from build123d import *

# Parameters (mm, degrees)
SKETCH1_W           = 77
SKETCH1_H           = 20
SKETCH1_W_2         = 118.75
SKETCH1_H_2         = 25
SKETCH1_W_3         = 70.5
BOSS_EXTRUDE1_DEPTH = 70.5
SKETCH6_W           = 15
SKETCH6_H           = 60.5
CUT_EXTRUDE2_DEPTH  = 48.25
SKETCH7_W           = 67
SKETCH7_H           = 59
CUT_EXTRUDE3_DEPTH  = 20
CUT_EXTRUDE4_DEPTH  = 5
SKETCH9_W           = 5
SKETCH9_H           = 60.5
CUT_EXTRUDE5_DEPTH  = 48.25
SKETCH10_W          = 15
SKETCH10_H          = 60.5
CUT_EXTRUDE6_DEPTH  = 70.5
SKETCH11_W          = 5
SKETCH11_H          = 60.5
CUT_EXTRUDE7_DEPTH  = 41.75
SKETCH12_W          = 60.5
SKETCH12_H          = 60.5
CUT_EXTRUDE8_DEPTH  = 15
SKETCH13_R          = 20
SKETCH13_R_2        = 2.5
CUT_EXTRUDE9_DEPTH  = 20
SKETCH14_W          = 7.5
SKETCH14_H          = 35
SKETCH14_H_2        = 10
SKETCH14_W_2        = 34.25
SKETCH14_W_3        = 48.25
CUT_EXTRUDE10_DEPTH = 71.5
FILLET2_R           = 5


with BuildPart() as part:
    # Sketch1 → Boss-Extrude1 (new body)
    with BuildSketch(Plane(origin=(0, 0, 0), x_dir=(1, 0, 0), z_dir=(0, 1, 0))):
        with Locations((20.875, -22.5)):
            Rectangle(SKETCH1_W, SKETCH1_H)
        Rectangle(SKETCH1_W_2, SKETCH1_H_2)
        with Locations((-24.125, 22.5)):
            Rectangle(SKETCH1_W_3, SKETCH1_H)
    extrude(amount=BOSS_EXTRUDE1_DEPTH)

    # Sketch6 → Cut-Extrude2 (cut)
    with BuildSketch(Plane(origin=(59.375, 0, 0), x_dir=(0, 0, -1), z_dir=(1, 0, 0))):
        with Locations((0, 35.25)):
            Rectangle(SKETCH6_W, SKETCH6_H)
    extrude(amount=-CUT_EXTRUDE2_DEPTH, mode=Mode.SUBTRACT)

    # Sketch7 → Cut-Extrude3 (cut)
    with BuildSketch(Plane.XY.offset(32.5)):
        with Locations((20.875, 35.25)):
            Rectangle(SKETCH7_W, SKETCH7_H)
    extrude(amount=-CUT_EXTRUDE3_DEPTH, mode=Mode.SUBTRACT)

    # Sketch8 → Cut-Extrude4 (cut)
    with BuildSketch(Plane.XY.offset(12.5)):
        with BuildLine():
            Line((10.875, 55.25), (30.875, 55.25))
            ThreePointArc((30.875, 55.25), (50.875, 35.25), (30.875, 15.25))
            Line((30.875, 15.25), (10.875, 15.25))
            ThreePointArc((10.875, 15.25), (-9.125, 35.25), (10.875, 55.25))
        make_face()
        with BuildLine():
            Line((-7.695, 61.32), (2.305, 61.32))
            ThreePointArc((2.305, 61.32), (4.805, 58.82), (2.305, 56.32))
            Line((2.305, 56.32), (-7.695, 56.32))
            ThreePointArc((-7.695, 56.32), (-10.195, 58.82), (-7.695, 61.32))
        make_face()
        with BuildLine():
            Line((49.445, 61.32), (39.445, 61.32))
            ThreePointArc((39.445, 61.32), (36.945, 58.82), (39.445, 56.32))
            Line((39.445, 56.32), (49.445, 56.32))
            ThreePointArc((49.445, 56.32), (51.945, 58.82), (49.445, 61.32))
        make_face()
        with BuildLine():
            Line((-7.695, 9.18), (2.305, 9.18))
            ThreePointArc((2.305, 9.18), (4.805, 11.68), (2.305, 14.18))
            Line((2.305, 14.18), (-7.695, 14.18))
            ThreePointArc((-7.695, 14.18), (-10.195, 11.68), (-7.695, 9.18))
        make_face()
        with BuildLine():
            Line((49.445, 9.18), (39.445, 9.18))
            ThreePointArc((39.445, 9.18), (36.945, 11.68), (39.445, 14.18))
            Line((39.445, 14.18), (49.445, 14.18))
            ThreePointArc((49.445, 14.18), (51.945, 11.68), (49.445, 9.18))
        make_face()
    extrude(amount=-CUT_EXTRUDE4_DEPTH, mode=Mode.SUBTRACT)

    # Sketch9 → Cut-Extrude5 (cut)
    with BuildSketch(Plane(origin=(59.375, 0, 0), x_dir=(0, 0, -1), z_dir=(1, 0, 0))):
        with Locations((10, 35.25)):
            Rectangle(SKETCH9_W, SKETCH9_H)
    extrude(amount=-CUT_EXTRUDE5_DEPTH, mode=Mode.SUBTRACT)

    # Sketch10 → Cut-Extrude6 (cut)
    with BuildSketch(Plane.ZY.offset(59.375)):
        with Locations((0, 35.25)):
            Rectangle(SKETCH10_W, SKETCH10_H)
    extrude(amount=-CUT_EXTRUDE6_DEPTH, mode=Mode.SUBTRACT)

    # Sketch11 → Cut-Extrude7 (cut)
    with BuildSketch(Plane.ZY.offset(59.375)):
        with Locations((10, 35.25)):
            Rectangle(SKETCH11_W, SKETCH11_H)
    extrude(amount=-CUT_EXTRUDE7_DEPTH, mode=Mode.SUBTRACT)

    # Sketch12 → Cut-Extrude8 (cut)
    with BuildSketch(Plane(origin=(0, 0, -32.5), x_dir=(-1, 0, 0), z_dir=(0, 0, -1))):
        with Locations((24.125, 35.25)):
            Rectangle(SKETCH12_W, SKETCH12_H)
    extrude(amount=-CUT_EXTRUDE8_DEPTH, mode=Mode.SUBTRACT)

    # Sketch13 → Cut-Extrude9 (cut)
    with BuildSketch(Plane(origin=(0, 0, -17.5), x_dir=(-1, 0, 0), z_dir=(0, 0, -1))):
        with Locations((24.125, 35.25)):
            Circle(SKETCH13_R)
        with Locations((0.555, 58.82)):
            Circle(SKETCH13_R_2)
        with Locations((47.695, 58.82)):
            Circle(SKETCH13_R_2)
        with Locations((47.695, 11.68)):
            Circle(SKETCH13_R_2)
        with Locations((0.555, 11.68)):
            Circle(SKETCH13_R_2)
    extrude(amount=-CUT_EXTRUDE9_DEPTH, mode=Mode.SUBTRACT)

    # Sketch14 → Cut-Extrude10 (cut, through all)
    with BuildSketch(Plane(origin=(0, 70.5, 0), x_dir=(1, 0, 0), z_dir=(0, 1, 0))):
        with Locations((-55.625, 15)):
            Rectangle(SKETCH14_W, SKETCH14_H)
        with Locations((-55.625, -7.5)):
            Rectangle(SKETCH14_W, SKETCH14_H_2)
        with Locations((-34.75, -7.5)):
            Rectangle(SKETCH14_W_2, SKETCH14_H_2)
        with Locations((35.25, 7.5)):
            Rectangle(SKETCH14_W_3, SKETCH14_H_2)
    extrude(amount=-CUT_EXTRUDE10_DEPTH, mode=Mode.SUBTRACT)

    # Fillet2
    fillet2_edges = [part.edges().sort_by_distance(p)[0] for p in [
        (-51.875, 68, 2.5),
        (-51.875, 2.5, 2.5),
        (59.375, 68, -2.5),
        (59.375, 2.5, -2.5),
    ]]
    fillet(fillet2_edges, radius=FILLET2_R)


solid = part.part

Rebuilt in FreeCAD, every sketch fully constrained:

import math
import FreeCAD as App
import Part
import Sketcher

V = App.Vector


def edges_at(feature, points):
    """Names of the edges that pass closest to the given points."""
    edges = feature.Shape.Edges
    near = lambda p: min(range(len(edges)), key=lambda i: edges[i].distToShape(Part.Vertex(*p))[0])
    return sorted({f"Edge{near(p) + 1}" for p in points})

doc = App.newDocument("Part")
body = doc.addObject("PartDesign::Body", "Body")

sketch1 = body.newObject("Sketcher::SketchObject", "Sketch")
sketch1.AttachmentSupport = (doc.getObject("XZ_Plane"), [""])
sketch1.MapMode = "FlatFace"
sketch1.addGeometry([
    Part.LineSegment(V(-17.625, 12.5, 0), V(-17.625, 32.5, 0)),
    Part.LineSegment(V(-17.625, 32.5, 0), V(59.375, 32.5, 0)),
    Part.LineSegment(V(59.375, 32.5, 0), V(59.375, -12.5, 0)),
    Part.LineSegment(V(59.375, -12.5, 0), V(11.125, -12.5, 0)),
    Part.LineSegment(V(11.125, -12.5, 0), V(11.125, -32.5, 0)),
    Part.LineSegment(V(11.125, -32.5, 0), V(-59.375, -32.5, 0)),
    Part.LineSegment(V(-59.375, -32.5, 0), V(-59.375, 12.5, 0)),
    Part.LineSegment(V(-59.375, 12.5, 0), V(-17.625, 12.5, 0)),
], False)
sketch1.addConstraint([
    Sketcher.Constraint("Coincident", 0, 2, 1, 1),
    Sketcher.Constraint("Coincident", 1, 2, 2, 1),
    Sketcher.Constraint("Coincident", 2, 2, 3, 1),
    Sketcher.Constraint("Coincident", 3, 2, 4, 1),
    Sketcher.Constraint("Coincident", 4, 2, 5, 1),
    Sketcher.Constraint("Coincident", 5, 2, 6, 1),
    Sketcher.Constraint("Coincident", 6, 2, 7, 1),
    Sketcher.Constraint("Coincident", 7, 2, 0, 1),
    Sketcher.Constraint("Vertical", 0),
    Sketcher.Constraint("Horizontal", 1),
    Sketcher.Constraint("Vertical", 2),
    Sketcher.Constraint("Horizontal", 3),
    Sketcher.Constraint("Vertical", 4),
    Sketcher.Constraint("Horizontal", 5),
    Sketcher.Constraint("Vertical", 6),
    Sketcher.Constraint("Horizontal", 7),
    Sketcher.Constraint("Symmetric", 1, 2, 5, 2, -1, 1),
    Sketcher.Constraint("Equal", 0, 4),
    Sketcher.Constraint("DistanceX", 1, 1, 1, 2, 77.0),
    Sketcher.Constraint("DistanceY", 0, 1, 0, 2, 20.0),
    Sketcher.Constraint("DistanceY", 2, 2, 2, 1, 45.0),
    Sketcher.Constraint("DistanceX", 5, 2, 5, 1, 70.5),
    Sketcher.Constraint("DistanceX", 3, 2, 3, 1, 48.25),
])
pad1 = body.newObject("PartDesign::Pad", "Pad")
pad1.Profile = sketch1
pad1.Length = 70.5
pad1.Reversed = True

sketch2 = body.newObject("Sketcher::SketchObject", "Sketch001")
sketch2.AttachmentSupport = (doc.getObject("YZ_Plane"), [""])
sketch2.MapMode = "FlatFace"
sketch2.AttachmentOffset = App.Placement(V(0, 0, 59.375), App.Rotation())
sketch2.addGeometry([
    Part.LineSegment(V(65.5, 7.5, 0), V(5, 7.5, 0)),
    Part.LineSegment(V(5, 7.5, 0), V(5, -7.5, 0)),
    Part.LineSegment(V(5, -7.5, 0), V(65.5, -7.5, 0)),
    Part.LineSegment(V(65.5, -7.5, 0), V(65.5, 7.5, 0)),
], False)
sketch2.addConstraint([
    Sketcher.Constraint("Coincident", 0, 2, 1, 1),
    Sketcher.Constraint("Coincident", 1, 2, 2, 1),
    Sketcher.Constraint("Coincident", 2, 2, 3, 1),
    Sketcher.Constraint("Coincident", 3, 2, 0, 1),
    Sketcher.Constraint("Horizontal", 0),
    Sketcher.Constraint("Vertical", 1),
    Sketcher.Constraint("Horizontal", 2),
    Sketcher.Constraint("Vertical", 3),
    Sketcher.Constraint("DistanceY", 1, 2, 1, 1, 15.0),
    Sketcher.Constraint("DistanceX", 0, 2, 0, 1, 60.5),
    Sketcher.Constraint("DistanceX", -1, 1, 0, 2, 5.0),
    Sketcher.Constraint("DistanceY", -1, 1, 0, 2, 7.5),
])
pocket1 = body.newObject("PartDesign::Pocket", "Pocket")
pocket1.Profile = sketch2
pocket1.Length = 48.25

sketch3 = body.newObject("Sketcher::SketchObject", "Sketch002")
sketch3.AttachmentSupport = (doc.getObject("XY_Plane"), [""])
sketch3.MapMode = "FlatFace"
sketch3.AttachmentOffset = App.Placement(V(0, 0, 32.5), App.Rotation())
sketch3.addGeometry([
    Part.LineSegment(V(-12.625, 64.75, 0), V(-12.625, 5.75, 0)),
    Part.LineSegment(V(-12.625, 5.75, 0), V(54.375, 5.75, 0)),
    Part.LineSegment(V(54.375, 5.75, 0), V(54.375, 64.75, 0)),
    Part.LineSegment(V(54.375, 64.75, 0), V(-12.625, 64.75, 0)),
], False)
sketch3.addConstraint([
    Sketcher.Constraint("Coincident", 0, 2, 1, 1),
    Sketcher.Constraint("Coincident", 1, 2, 2, 1),
    Sketcher.Constraint("Coincident", 2, 2, 3, 1),
    Sketcher.Constraint("Coincident", 3, 2, 0, 1),
    Sketcher.Constraint("Vertical", 0),
    Sketcher.Constraint("Horizontal", 1),
    Sketcher.Constraint("Vertical", 2),
    Sketcher.Constraint("Horizontal", 3),
    Sketcher.Constraint("DistanceX", 1, 1, 1, 2, 67.0),
    Sketcher.Constraint("DistanceY", 0, 2, 0, 1, 59.0),
    Sketcher.Constraint("DistanceY", -1, 1, 0, 2, 5.75),
    Sketcher.Constraint("DistanceX", 0, 2, -1, 1, 12.625),
])
pocket2 = body.newObject("PartDesign::Pocket", "Pocket001")
pocket2.Profile = sketch3
pocket2.Length = 20

sketch4 = body.newObject("Sketcher::SketchObject", "Sketch003")
sketch4.AttachmentSupport = (doc.getObject("XY_Plane"), [""])
sketch4.MapMode = "FlatFace"
sketch4.AttachmentOffset = App.Placement(V(0, 0, 12.5), App.Rotation())
sketch4.addGeometry([
    Part.LineSegment(V(30.875, 55.25, 0), V(10.875, 55.25, 0)),
    Part.ArcOfCircle(Part.Circle(V(10.875, 35.25, 0), V(0, 0, 1), 20), math.radians(90), math.radians(270)),
    Part.LineSegment(V(10.875, 15.25, 0), V(30.875, 15.25, 0)),
    Part.ArcOfCircle(Part.Circle(V(30.875, 35.25, 0), V(0, 0, 1), 20), math.radians(-90), math.radians(90)),
    Part.LineSegment(V(2.305, 61.32, 0), V(-7.695, 61.32, 0)),
    Part.ArcOfCircle(Part.Circle(V(-7.695, 58.82, 0), V(0, 0, 1), 2.5), math.radians(90), math.radians(270)),
    Part.LineSegment(V(-7.695, 56.32, 0), V(2.305, 56.32, 0)),
    Part.ArcOfCircle(Part.Circle(V(2.305, 58.82, 0), V(0, 0, 1), 2.5), math.radians(-90), math.radians(90)),
    Part.LineSegment(V(49.445, 61.32, 0), V(39.445, 61.32, 0)),
    Part.ArcOfCircle(Part.Circle(V(39.445, 58.82, 0), V(0, 0, 1), 2.5), math.radians(90), math.radians(270)),
    Part.LineSegment(V(39.445, 56.32, 0), V(49.445, 56.32, 0)),
    Part.ArcOfCircle(Part.Circle(V(49.445, 58.82, 0), V(0, 0, 1), 2.5), math.radians(-90), math.radians(90)),
    Part.LineSegment(V(-7.695, 9.18, 0), V(2.305, 9.18, 0)),
    Part.ArcOfCircle(Part.Circle(V(2.305, 11.68, 0), V(0, 0, 1), 2.5), math.radians(-90), math.radians(90)),
    Part.LineSegment(V(2.305, 14.18, 0), V(-7.695, 14.18, 0)),
    Part.ArcOfCircle(Part.Circle(V(-7.695, 11.68, 0), V(0, 0, 1), 2.5), math.radians(90), math.radians(270)),
    Part.LineSegment(V(39.445, 9.18, 0), V(49.445, 9.18, 0)),
    Part.ArcOfCircle(Part.Circle(V(49.445, 11.68, 0), V(0, 0, 1), 2.5), math.radians(-90), math.radians(90)),
    Part.LineSegment(V(49.445, 14.18, 0), V(39.445, 14.18, 0)),
    Part.ArcOfCircle(Part.Circle(V(39.445, 11.68, 0), V(0, 0, 1), 2.5), math.radians(90), math.radians(270)),
], False)
sketch4.addConstraint([
    Sketcher.Constraint("Tangent", 0, 2, 1, 1),
    Sketcher.Constraint("Tangent", 1, 2, 2, 1),
    Sketcher.Constraint("Tangent", 2, 2, 3, 1),
    Sketcher.Constraint("Tangent", 3, 2, 0, 1),
    Sketcher.Constraint("Tangent", 4, 2, 5, 1),
    Sketcher.Constraint("Tangent", 5, 2, 6, 1),
    Sketcher.Constraint("Tangent", 6, 2, 7, 1),
    Sketcher.Constraint("Tangent", 7, 2, 4, 1),
    Sketcher.Constraint("Tangent", 8, 2, 9, 1),
    Sketcher.Constraint("Tangent", 9, 2, 10, 1),
    Sketcher.Constraint("Tangent", 10, 2, 11, 1),
    Sketcher.Constraint("Tangent", 11, 2, 8, 1),
    Sketcher.Constraint("Tangent", 12, 2, 13, 1),
    Sketcher.Constraint("Tangent", 13, 2, 14, 1),
    Sketcher.Constraint("Tangent", 14, 2, 15, 1),
    Sketcher.Constraint("Tangent", 15, 2, 12, 1),
    Sketcher.Constraint("Tangent", 16, 2, 17, 1),
    Sketcher.Constraint("Tangent", 17, 2, 18, 1),
    Sketcher.Constraint("Tangent", 18, 2, 19, 1),
    Sketcher.Constraint("Tangent", 19, 2, 16, 1),
    Sketcher.Constraint("Horizontal", 0),
    Sketcher.Constraint("Horizontal", 2),
    Sketcher.Constraint("Horizontal", 4),
    Sketcher.Constraint("Horizontal", 6),
    Sketcher.Constraint("Horizontal", 8),
    Sketcher.Constraint("Horizontal", 10),
    Sketcher.Constraint("Horizontal", 12),
    Sketcher.Constraint("Horizontal", 14),
    Sketcher.Constraint("Horizontal", 16),
    Sketcher.Constraint("Horizontal", 18),
    Sketcher.Constraint("Equal", 7, 9),
    Sketcher.Constraint("Equal", 11, 13),
    Sketcher.Constraint("Equal", 15, 17),
    Sketcher.Constraint("Horizontal", 7, 3, 9, 3),
    Sketcher.Constraint("Horizontal", 15, 3, 17, 3),
    Sketcher.Constraint("Vertical", 7, 3, 13, 3),
    Sketcher.Constraint("Vertical", 5, 3, 15, 3),
    Sketcher.Constraint("Vertical", 11, 3, 17, 3),
    Sketcher.Constraint("Vertical", 9, 3, 19, 3),
    Sketcher.Constraint("Equal", 6, 8),
    Sketcher.Constraint("Radius", 1, 20.0),
    Sketcher.Constraint("Radius", 5, 2.5),
    Sketcher.Constraint("DistanceX", 0, 2, 0, 1, 20.0),
    Sketcher.Constraint("DistanceX", 4, 2, 4, 1, 10.0),
    Sketcher.Constraint("DistanceY", -1, 1, 1, 3, 35.25),
    Sketcher.Constraint("DistanceY", -1, 1, 5, 3, 58.82),
    Sketcher.Constraint("DistanceY", -1, 1, 13, 3, 11.68),
    Sketcher.Constraint("DistanceX", 5, 3, 1, 3, 18.57),
    Sketcher.Constraint("DistanceX", 3, 3, 9, 3, 8.57),
    Sketcher.Constraint("DistanceX", -1, 1, 1, 3, 10.875),
])
pocket3 = body.newObject("PartDesign::Pocket", "Pocket002")
pocket3.Profile = sketch4
pocket3.Length = 5

sketch5 = body.newObject("Sketcher::SketchObject", "Sketch004")
sketch5.AttachmentSupport = (doc.getObject("YZ_Plane"), [""])
sketch5.MapMode = "FlatFace"
sketch5.AttachmentOffset = App.Placement(V(0, 0, 59.375), App.Rotation())
sketch5.addGeometry([
    Part.LineSegment(V(65.5, -7.5, 0), V(5, -7.5, 0)),
    Part.LineSegment(V(5, -7.5, 0), V(5, -12.5, 0)),
    Part.LineSegment(V(5, -12.5, 0), V(65.5, -12.5, 0)),
    Part.LineSegment(V(65.5, -12.5, 0), V(65.5, -7.5, 0)),
], False)
sketch5.addConstraint([
    Sketcher.Constraint("Coincident", 0, 2, 1, 1),
    Sketcher.Constraint("Coincident", 1, 2, 2, 1),
    Sketcher.Constraint("Coincident", 2, 2, 3, 1),
    Sketcher.Constraint("Coincident", 3, 2, 0, 1),
    Sketcher.Constraint("Horizontal", 0),
    Sketcher.Constraint("Vertical", 1),
    Sketcher.Constraint("Horizontal", 2),
    Sketcher.Constraint("Vertical", 3),
    Sketcher.Constraint("DistanceY", 1, 2, 1, 1, 5.0),
    Sketcher.Constraint("DistanceX", 0, 2, 0, 1, 60.5),
    Sketcher.Constraint("DistanceX", -1, 1, 0, 2, 5.0),
    Sketcher.Constraint("DistanceY", 0, 2, -1, 1, 7.5),
])
pocket4 = body.newObject("PartDesign::Pocket", "Pocket003")
pocket4.Profile = sketch5
pocket4.Length = 48.25

sketch6 = body.newObject("Sketcher::SketchObject", "Sketch005")
sketch6.AttachmentSupport = (doc.getObject("YZ_Plane"), [""])
sketch6.MapMode = "FlatFace"
sketch6.AttachmentOffset = App.Placement(V(0, 0, -59.375), App.Rotation())
sketch6.addGeometry([
    Part.LineSegment(V(65.5, -7.5, 0), V(5, -7.5, 0)),
    Part.LineSegment(V(5, -7.5, 0), V(5, 7.5, 0)),
    Part.LineSegment(V(5, 7.5, 0), V(65.5, 7.5, 0)),
    Part.LineSegment(V(65.5, 7.5, 0), V(65.5, -7.5, 0)),
], False)
sketch6.addConstraint([
    Sketcher.Constraint("Coincident", 0, 2, 1, 1),
    Sketcher.Constraint("Coincident", 1, 2, 2, 1),
    Sketcher.Constraint("Coincident", 2, 2, 3, 1),
    Sketcher.Constraint("Coincident", 3, 2, 0, 1),
    Sketcher.Constraint("Horizontal", 0),
    Sketcher.Constraint("Vertical", 1),
    Sketcher.Constraint("Horizontal", 2),
    Sketcher.Constraint("Vertical", 3),
    Sketcher.Constraint("DistanceY", 1, 1, 1, 2, 15.0),
    Sketcher.Constraint("DistanceX", 0, 2, 0, 1, 60.5),
    Sketcher.Constraint("DistanceX", -1, 1, 0, 2, 5.0),
    Sketcher.Constraint("DistanceY", 0, 2, -1, 1, 7.5),
])
pocket5 = body.newObject("PartDesign::Pocket", "Pocket004")
pocket5.Profile = sketch6
pocket5.Length = 70.5
pocket5.Reversed = True

sketch7 = body.newObject("Sketcher::SketchObject", "Sketch006")
sketch7.AttachmentSupport = (doc.getObject("YZ_Plane"), [""])
sketch7.MapMode = "FlatFace"
sketch7.AttachmentOffset = App.Placement(V(0, 0, -59.375), App.Rotation())
sketch7.addGeometry([
    Part.LineSegment(V(65.5, 7.5, 0), V(5, 7.5, 0)),
    Part.LineSegment(V(5, 7.5, 0), V(5, 12.5, 0)),
    Part.LineSegment(V(5, 12.5, 0), V(65.5, 12.5, 0)),
    Part.LineSegment(V(65.5, 12.5, 0), V(65.5, 7.5, 0)),
], False)
sketch7.addConstraint([
    Sketcher.Constraint("Coincident", 0, 2, 1, 1),
    Sketcher.Constraint("Coincident", 1, 2, 2, 1),
    Sketcher.Constraint("Coincident", 2, 2, 3, 1),
    Sketcher.Constraint("Coincident", 3, 2, 0, 1),
    Sketcher.Constraint("Horizontal", 0),
    Sketcher.Constraint("Vertical", 1),
    Sketcher.Constraint("Horizontal", 2),
    Sketcher.Constraint("Vertical", 3),
    Sketcher.Constraint("DistanceY", 1, 1, 1, 2, 5.0),
    Sketcher.Constraint("DistanceX", 0, 2, 0, 1, 60.5),
    Sketcher.Constraint("DistanceX", -1, 1, 0, 2, 5.0),
    Sketcher.Constraint("DistanceY", -1, 1, 0, 2, 7.5),
])
pocket6 = body.newObject("PartDesign::Pocket", "Pocket005")
pocket6.Profile = sketch7
pocket6.Length = 41.75
pocket6.Reversed = True

sketch8 = body.newObject("Sketcher::SketchObject", "Sketch007")
sketch8.AttachmentSupport = (doc.getObject("XY_Plane"), [""])
sketch8.MapMode = "FlatFace"
sketch8.AttachmentOffset = App.Placement(V(0, 0, -32.5), App.Rotation())
sketch8.addGeometry([
    Part.LineSegment(V(6.125, 65.5, 0), V(6.125, 5, 0)),
    Part.LineSegment(V(6.125, 5, 0), V(-54.375, 5, 0)),
    Part.LineSegment(V(-54.375, 5, 0), V(-54.375, 65.5, 0)),
    Part.LineSegment(V(-54.375, 65.5, 0), V(6.125, 65.5, 0)),
], False)
sketch8.addConstraint([
    Sketcher.Constraint("Coincident", 0, 2, 1, 1),
    Sketcher.Constraint("Coincident", 1, 2, 2, 1),
    Sketcher.Constraint("Coincident", 2, 2, 3, 1),
    Sketcher.Constraint("Coincident", 3, 2, 0, 1),
    Sketcher.Constraint("Vertical", 0),
    Sketcher.Constraint("Horizontal", 1),
    Sketcher.Constraint("Vertical", 2),
    Sketcher.Constraint("Horizontal", 3),
    Sketcher.Constraint("Equal", 3, 0),
    Sketcher.Constraint("DistanceX", 1, 2, 1, 1, 60.5),
    Sketcher.Constraint("DistanceY", -1, 1, 0, 2, 5.0),
    Sketcher.Constraint("DistanceX", -1, 1, 0, 2, 6.125),
])
pocket7 = body.newObject("PartDesign::Pocket", "Pocket006")
pocket7.Profile = sketch8
pocket7.Length = 15
pocket7.Reversed = True

sketch9 = body.newObject("Sketcher::SketchObject", "Sketch008")
sketch9.AttachmentSupport = (doc.getObject("XY_Plane"), [""])
sketch9.MapMode = "FlatFace"
sketch9.AttachmentOffset = App.Placement(V(0, 0, -17.5), App.Rotation())
sketch9.addGeometry([
    Part.Circle(V(-24.125, 35.25, 0), V(0, 0, 1), 20),
    Part.Circle(V(-0.555, 58.82, 0), V(0, 0, 1), 2.5),
    Part.Circle(V(-47.695, 58.82, 0), V(0, 0, 1), 2.5),
    Part.Circle(V(-47.695, 11.68, 0), V(0, 0, 1), 2.5),
    Part.Circle(V(-0.555, 11.68, 0), V(0, 0, 1), 2.5),
], False)
sketch9.addConstraint([
    Sketcher.Constraint("Equal", 1, 2),
    Sketcher.Constraint("Equal", 2, 3),
    Sketcher.Constraint("Equal", 3, 4),
    Sketcher.Constraint("Horizontal", 1, 3, 2, 3),
    Sketcher.Constraint("Horizontal", 3, 3, 4, 3),
    Sketcher.Constraint("Vertical", 2, 3, 3, 3),
    Sketcher.Constraint("Vertical", 1, 3, 4, 3),
    Sketcher.Constraint("Diameter", 0, 40.0),
    Sketcher.Constraint("Diameter", 1, 5.0),
    Sketcher.Constraint("DistanceY", -1, 1, 0, 3, 35.25),
    Sketcher.Constraint("DistanceY", -1, 1, 1, 3, 58.82),
    Sketcher.Constraint("DistanceY", -1, 1, 3, 3, 11.68),
    Sketcher.Constraint("DistanceX", 0, 3, 1, 3, 23.57),
    Sketcher.Constraint("DistanceX", 2, 3, 0, 3, 23.57),
    Sketcher.Constraint("DistanceX", 0, 3, -1, 1, 24.125),
])
pocket8 = body.newObject("PartDesign::Pocket", "Pocket007")
pocket8.Profile = sketch9
pocket8.Length = 20
pocket8.Reversed = True

sketch10 = body.newObject("Sketcher::SketchObject", "Sketch009")
sketch10.AttachmentSupport = (doc.getObject("XZ_Plane"), [""])
sketch10.MapMode = "FlatFace"
sketch10.AttachmentOffset = App.Placement(V(0, 0, -70.5), App.Rotation())
sketch10.addGeometry([
    Part.LineSegment(V(-59.375, -32.5, 0), V(-59.375, 12.5, 0)),
    Part.LineSegment(V(-59.375, 12.5, 0), V(-17.625, 12.5, 0)),
    Part.LineSegment(V(-17.625, 12.5, 0), V(-17.625, 2.5, 0)),
    Part.LineSegment(V(-17.625, 2.5, 0), V(-51.875, 2.5, 0)),
    Part.LineSegment(V(-51.875, 2.5, 0), V(-51.875, -32.5, 0)),
    Part.LineSegment(V(-51.875, -32.5, 0), V(-59.375, -32.5, 0)),
    Part.LineSegment(V(11.125, -12.5, 0), V(11.125, -2.5, 0)),
    Part.LineSegment(V(11.125, -2.5, 0), V(59.375, -2.5, 0)),
    Part.LineSegment(V(59.375, -2.5, 0), V(59.375, -12.5, 0)),
    Part.LineSegment(V(59.375, -12.5, 0), V(11.125, -12.5, 0)),
], False)
sketch10.addConstraint([
    Sketcher.Constraint("Coincident", 0, 2, 1, 1),
    Sketcher.Constraint("Coincident", 1, 2, 2, 1),
    Sketcher.Constraint("Coincident", 2, 2, 3, 1),
    Sketcher.Constraint("Coincident", 3, 2, 4, 1),
    Sketcher.Constraint("Coincident", 4, 2, 5, 1),
    Sketcher.Constraint("Coincident", 5, 2, 0, 1),
    Sketcher.Constraint("Coincident", 6, 2, 7, 1),
    Sketcher.Constraint("Coincident", 7, 2, 8, 1),
    Sketcher.Constraint("Coincident", 8, 2, 9, 1),
    Sketcher.Constraint("Coincident", 9, 2, 6, 1),
    Sketcher.Constraint("Vertical", 0),
    Sketcher.Constraint("Horizontal", 1),
    Sketcher.Constraint("Vertical", 2),
    Sketcher.Constraint("Horizontal", 3),
    Sketcher.Constraint("Vertical", 4),
    Sketcher.Constraint("Horizontal", 5),
    Sketcher.Constraint("Vertical", 6),
    Sketcher.Constraint("Horizontal", 7),
    Sketcher.Constraint("Vertical", 8),
    Sketcher.Constraint("Horizontal", 9),
    Sketcher.Constraint("Symmetric", 0, 2, 8, 2, -1, 1),
    Sketcher.Constraint("Equal", 2, 6),
    Sketcher.Constraint("DistanceY", 0, 1, 0, 2, 45.0),
    Sketcher.Constraint("DistanceY", 2, 2, 2, 1, 10.0),
    Sketcher.Constraint("DistanceX", 5, 2, 5, 1, 7.5),
    Sketcher.Constraint("DistanceY", 6, 2, 2, 2, 5.0),
    Sketcher.Constraint("DistanceX", 3, 2, 6, 2, 63.0),
    Sketcher.Constraint("DistanceX", 2, 2, 7, 2, 77.0),
    Sketcher.Constraint("DistanceX", 1, 1, 1, 2, 41.75),
])
pocket9 = body.newObject("PartDesign::Pocket", "Pocket008")
pocket9.Profile = sketch10
pocket9.Type = "ThroughAll"
pocket9.Reversed = True
doc.recompute()

fillet = body.newObject("PartDesign::Fillet", "Fillet")
fillet.Base = (pocket9, edges_at(pocket9, [
    (-51.875, 68, 2.5),
    (-51.875, 2.5, 2.5),
    (59.375, 68, -2.5),
    (59.375, 2.5, -2.5),
]))
fillet.Radius = 5

doc.recompute()
